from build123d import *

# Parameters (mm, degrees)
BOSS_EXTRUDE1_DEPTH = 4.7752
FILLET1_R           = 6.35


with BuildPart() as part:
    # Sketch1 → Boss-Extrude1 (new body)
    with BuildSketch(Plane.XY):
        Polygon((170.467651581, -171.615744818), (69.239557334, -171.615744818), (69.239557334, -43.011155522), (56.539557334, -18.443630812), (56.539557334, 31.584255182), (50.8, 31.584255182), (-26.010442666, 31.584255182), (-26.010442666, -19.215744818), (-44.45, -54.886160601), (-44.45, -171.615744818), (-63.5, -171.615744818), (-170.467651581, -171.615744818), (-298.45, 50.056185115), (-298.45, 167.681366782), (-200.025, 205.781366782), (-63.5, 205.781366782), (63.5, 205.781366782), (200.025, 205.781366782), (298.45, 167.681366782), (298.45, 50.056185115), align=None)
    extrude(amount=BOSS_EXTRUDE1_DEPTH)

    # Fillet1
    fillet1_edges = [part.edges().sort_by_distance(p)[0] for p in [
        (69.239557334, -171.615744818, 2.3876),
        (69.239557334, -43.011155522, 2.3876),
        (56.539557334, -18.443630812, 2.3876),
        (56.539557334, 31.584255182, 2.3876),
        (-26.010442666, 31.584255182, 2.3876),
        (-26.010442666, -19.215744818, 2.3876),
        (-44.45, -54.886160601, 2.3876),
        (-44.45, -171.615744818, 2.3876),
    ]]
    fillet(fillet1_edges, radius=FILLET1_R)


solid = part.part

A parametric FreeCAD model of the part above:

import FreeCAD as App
import Part
import Sketcher
from FreeCAD import Vector
Q = App.Units.Quantity


def edges_at(feature, points):
    """Names of the edges that pass closest to the given points."""
    edges = feature.Shape.Edges
    near = lambda p: min(range(len(edges)), key=lambda i: edges[i].distToShape(Part.Vertex(*p))[0])
    return sorted({f"Edge{near(p) + 1}" for p in points})


def add_polygon(sketch, points):
    """Adds a closed chain of lines whose ends are joined by coincident constraints."""
    first, n = sketch.GeometryCount, len(points)
    for a, b in zip(points, points[1:] + points[:1]):
        sketch.addGeometry(Part.LineSegment(App.Vector(*a, 0), App.Vector(*b, 0)), False)
    for i in range(n):
        sketch.addConstraint(Sketcher.Constraint("Coincident", first + i, 2, first + (i + 1) % n, 1))

doc = App.newDocument("Part")
body = doc.addObject("PartDesign::Body", "Body")

sketch1 = doc.addObject("Sketcher::SketchObject", "Sketch")
body.addObject(sketch1)
sketch1.AttachmentSupport = (doc.XY_Plane, [""])
sketch1.MapMode = "FlatFace"
add_polygon(sketch1, [(69.239557, -171.615745), (170.467652, -171.615745), (298.45, 50.056185), (298.45, 167.681367), (200.025, 205.781367), (-200.025, 205.781367), (-298.45, 167.681367), (-298.45, 50.056185), (-170.467652, -171.615745), (-44.45, -171.615745), (-44.45, -54.886161), (-26.010443, -19.215745), (-26.010443, 31.584255), (56.539557, 31.584255), (56.539557, -18.443631), (69.239557, -43.011156)])
sketch1.addConstraint([
    Sketcher.Constraint("Horizontal", 0),
    Sketcher.Constraint("Vertical", 2),
    Sketcher.Constraint("Horizontal", 4),
    Sketcher.Constraint("Vertical", 6),
    Sketcher.Constraint("Horizontal", 8),
    Sketcher.Constraint("Vertical", 9),
    Sketcher.Constraint("Vertical", 11),
    Sketcher.Constraint("Horizontal", 12),
    Sketcher.Constraint("Vertical", 13),
    Sketcher.Constraint("Vertical", 15),
    Sketcher.Constraint("Symmetric", 2, 2, 5, 2, -2),
    Sketcher.Constraint("Symmetric", 0, 2, 7, 2, -2),
    Sketcher.Constraint("Horizontal", 1, 2, 6, 2),
    Sketcher.Constraint("Equal", 3, 5),
    Sketcher.Constraint("DistanceY", 11, 1, 11, 2, Q("2 in")),
    Sketcher.Constraint("Angle", 1, Q("60 deg")),
    Sketcher.Constraint("DistanceX", 6, 2, 8, 2, Q("10 in")),
    Sketcher.Constraint("DistanceY", 8, 2, 10, 2, Q("6 in")),
    Sketcher.Constraint("DistanceX", 4, 2, 4, 1, Q("15.75 in")),
    Sketcher.Constraint("DistanceX", 12, 1, 12, 2, Q("3.25 in")),
    Sketcher.Constraint("DistanceY", 2, 2, 3, 2, Q("1.5 in")),
    Sketcher.Constraint("DistanceX", 5, 2, 2, 2, Q("23.5 in")),
    Sketcher.Constraint("DistanceX", 13, 2, 14, 2, Q("0.5 in")),
    Sketcher.Constraint("DistanceX", 8, 1, 8, 2, Q("126.017652 mm")),
    Sketcher.Constraint("DistanceY", 2, 1, 2, 2, Q("117.625182 mm")),
    Sketcher.Constraint("DistanceY", 15, 2, 15, 1, Q("128.604589 mm")),
    Sketcher.Constraint("Distance", 10, Q("40.154649 mm")),
    Sketcher.Constraint("Distance", 14, Q("27.655981 mm")),
    Sketcher.Constraint("DistanceX", 0, 1, 0, 2, Q("101.228094 mm")),
    Sketcher.Constraint("DistanceY", 9, 2, -1, 1, Q("54.886161 mm")),
])
pad1 = doc.addObject("PartDesign::Pad", "Pad")
body.addObject(pad1)
pad1.Profile = sketch1
pad1.Length = Q("0.188 in")
doc.recompute()

fillet = doc.addObject("PartDesign::Fillet", "Fillet")
body.addObject(fillet)
fillet.Base = (pad1, edges_at(pad1, [
    (69.24, -171.616, 2.388),
    (69.24, -43.011, 2.388),
    (56.54, -18.444, 2.388),
    (56.54, 31.584, 2.388),
    (-26.01, 31.584, 2.388),
    (-26.01, -19.216, 2.388),
    (-44.45, -54.886, 2.388),
    (-44.45, -171.616, 2.388),
]))
fillet.Radius = Q("0.25 in")

doc.recompute()
